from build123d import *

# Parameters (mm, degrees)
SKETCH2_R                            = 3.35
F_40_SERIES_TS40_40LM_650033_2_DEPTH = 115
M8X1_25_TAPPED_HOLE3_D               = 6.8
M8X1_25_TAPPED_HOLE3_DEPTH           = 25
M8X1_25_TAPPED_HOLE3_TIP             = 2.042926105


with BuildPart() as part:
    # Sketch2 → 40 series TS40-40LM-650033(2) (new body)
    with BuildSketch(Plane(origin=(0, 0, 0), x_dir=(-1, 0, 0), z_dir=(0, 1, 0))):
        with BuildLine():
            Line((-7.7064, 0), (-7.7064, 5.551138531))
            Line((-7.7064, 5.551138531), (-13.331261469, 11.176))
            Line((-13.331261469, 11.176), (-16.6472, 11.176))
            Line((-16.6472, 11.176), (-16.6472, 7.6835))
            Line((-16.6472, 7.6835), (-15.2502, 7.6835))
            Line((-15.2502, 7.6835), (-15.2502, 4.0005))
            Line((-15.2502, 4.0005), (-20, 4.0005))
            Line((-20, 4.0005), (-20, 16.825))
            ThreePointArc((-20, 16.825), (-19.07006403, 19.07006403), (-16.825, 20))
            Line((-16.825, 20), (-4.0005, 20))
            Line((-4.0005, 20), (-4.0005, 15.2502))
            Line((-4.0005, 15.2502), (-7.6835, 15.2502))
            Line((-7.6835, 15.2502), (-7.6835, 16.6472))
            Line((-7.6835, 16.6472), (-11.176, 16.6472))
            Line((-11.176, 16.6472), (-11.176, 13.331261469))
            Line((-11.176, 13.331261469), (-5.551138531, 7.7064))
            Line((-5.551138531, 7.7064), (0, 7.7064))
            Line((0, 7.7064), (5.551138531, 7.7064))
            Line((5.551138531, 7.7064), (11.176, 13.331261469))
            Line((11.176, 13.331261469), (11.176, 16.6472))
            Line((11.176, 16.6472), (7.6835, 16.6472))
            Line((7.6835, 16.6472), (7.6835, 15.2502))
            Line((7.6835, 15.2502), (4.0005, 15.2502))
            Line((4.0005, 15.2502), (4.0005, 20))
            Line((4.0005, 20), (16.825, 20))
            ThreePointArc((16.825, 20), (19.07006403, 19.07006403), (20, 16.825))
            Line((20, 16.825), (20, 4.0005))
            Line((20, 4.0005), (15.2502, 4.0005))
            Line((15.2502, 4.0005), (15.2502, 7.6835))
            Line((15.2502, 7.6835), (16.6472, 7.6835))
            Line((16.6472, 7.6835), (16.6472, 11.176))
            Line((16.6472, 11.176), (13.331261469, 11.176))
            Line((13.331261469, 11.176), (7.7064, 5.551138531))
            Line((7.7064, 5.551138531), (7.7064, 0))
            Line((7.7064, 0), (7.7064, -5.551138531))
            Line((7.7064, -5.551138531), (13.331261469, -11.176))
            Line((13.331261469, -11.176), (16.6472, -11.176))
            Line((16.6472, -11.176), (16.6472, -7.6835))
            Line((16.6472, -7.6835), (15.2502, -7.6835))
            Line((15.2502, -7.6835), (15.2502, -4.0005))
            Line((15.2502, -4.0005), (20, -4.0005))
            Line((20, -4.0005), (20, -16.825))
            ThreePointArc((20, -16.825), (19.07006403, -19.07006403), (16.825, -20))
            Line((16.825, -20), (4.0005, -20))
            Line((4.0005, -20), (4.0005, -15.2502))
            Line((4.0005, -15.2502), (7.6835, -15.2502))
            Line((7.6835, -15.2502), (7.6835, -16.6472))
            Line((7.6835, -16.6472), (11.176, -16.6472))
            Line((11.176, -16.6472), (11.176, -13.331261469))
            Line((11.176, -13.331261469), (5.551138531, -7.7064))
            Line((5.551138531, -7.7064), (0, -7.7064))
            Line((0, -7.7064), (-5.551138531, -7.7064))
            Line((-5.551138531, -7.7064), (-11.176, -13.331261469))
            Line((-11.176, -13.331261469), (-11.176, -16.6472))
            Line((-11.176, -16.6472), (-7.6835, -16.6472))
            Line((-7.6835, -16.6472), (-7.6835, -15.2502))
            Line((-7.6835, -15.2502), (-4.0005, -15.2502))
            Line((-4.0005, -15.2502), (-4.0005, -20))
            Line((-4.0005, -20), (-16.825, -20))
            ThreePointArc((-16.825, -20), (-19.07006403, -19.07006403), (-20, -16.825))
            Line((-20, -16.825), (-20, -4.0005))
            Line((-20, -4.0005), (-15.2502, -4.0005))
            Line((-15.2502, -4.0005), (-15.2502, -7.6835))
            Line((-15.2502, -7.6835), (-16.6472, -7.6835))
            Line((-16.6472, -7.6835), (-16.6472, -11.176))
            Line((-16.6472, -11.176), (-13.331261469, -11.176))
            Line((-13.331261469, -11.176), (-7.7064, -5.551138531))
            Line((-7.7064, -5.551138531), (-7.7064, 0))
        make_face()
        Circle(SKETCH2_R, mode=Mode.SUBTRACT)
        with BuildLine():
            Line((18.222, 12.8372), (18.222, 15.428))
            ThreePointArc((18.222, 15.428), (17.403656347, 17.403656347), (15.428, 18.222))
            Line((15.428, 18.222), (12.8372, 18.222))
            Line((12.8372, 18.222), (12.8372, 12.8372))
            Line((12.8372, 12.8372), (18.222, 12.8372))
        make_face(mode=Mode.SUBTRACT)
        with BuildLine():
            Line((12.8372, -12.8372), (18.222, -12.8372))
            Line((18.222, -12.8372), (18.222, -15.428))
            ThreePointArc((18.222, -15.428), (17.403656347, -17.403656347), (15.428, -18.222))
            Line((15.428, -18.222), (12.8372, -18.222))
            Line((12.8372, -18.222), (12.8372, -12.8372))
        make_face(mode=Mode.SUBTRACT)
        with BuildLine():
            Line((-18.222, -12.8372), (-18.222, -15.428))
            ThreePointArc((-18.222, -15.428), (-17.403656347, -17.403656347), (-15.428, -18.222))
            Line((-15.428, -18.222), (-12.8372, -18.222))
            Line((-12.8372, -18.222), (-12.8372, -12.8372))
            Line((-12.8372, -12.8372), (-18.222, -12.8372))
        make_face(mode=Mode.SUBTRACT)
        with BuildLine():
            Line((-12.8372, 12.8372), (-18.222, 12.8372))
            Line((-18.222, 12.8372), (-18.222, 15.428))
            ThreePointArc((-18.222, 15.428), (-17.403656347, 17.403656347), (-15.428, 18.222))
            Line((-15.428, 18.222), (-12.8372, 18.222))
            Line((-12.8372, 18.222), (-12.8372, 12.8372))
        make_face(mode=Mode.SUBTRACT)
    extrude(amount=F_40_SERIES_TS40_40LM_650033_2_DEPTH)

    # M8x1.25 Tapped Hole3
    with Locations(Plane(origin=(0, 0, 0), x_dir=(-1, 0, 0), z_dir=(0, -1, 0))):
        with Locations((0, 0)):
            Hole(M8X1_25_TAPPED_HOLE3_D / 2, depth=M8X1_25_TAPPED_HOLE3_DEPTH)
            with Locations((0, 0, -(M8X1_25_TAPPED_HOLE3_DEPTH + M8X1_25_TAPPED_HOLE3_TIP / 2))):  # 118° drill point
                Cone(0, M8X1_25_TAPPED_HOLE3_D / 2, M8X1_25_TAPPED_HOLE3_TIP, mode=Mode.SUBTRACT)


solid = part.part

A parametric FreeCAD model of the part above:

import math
import FreeCAD as App
import Part
import Sketcher
Q = App.Units.Quantity

doc = App.newDocument("Part")
body = doc.addObject("PartDesign::Body", "Body")

sketch1 = doc.addObject("Sketcher::SketchObject", "Sketch")
body.addObject(sketch1)
sketch1.AttachmentSupport = (doc.XZ_Plane, [""])
sketch1.MapMode = "FlatFace"
sketch1.addGeometry([
    Part.LineSegment(App.Vector(13.331261, 11.176, 0), App.Vector(7.7064, 5.551139, 0)),
    Part.LineSegment(App.Vector(7.7064, 5.551139, 0), App.Vector(7.7064, -5.551139, 0)),
    Part.LineSegment(App.Vector(7.7064, -5.551139, 0), App.Vector(13.331261, -11.176, 0)),
    Part.LineSegment(App.Vector(13.331261, -11.176, 0), App.Vector(16.6472, -11.176, 0)),
    Part.LineSegment(App.Vector(16.6472, -11.176, 0), App.Vector(16.6472, -7.6835, 0)),
    Part.LineSegment(App.Vector(16.6472, -7.6835, 0), App.Vector(15.2502, -7.6835, 0)),
    Part.LineSegment(App.Vector(15.2502, -7.6835, 0), App.Vector(15.2502, -4.0005, 0)),
    Part.LineSegment(App.Vector(15.2502, -4.0005, 0), App.Vector(20, -4.0005, 0)),
    Part.LineSegment(App.Vector(20, -4.0005, 0), App.Vector(20, -16.825, 0)),
    Part.ArcOfCircle(Part.Circle(App.Vector(16.825, -16.825, 0), App.Vector(0, 0, 1), 3.175), math.radians(-90), math.radians(0)),
    Part.LineSegment(App.Vector(16.825, -20, 0), App.Vector(4.0005, -20, 0)),
    Part.LineSegment(App.Vector(4.0005, -20, 0), App.Vector(4.0005, -15.2502, 0)),
    Part.LineSegment(App.Vector(4.0005, -15.2502, 0), App.Vector(7.6835, -15.2502, 0)),
    Part.LineSegment(App.Vector(7.6835, -15.2502, 0), App.Vector(7.6835, -16.6472, 0)),
    Part.LineSegment(App.Vector(7.6835, -16.6472, 0), App.Vector(11.176, -16.6472, 0)),
    Part.LineSegment(App.Vector(11.176, -16.6472, 0), App.Vector(11.176, -13.331261, 0)),
    Part.LineSegment(App.Vector(11.176, -13.331261, 0), App.Vector(5.551139, -7.7064, 0)),
    Part.LineSegment(App.Vector(5.551139, -7.7064, 0), App.Vector(-5.551139, -7.7064, 0)),
    Part.LineSegment(App.Vector(-5.551139, -7.7064, 0), App.Vector(-11.176, -13.331261, 0)),
    Part.LineSegment(App.Vector(-11.176, -13.331261, 0), App.Vector(-11.176, -16.6472, 0)),
    Part.LineSegment(App.Vector(-11.176, -16.6472, 0), App.Vector(-7.6835, -16.6472, 0)),
    Part.LineSegment(App.Vector(-7.6835, -16.6472, 0), App.Vector(-7.6835, -15.2502, 0)),
    Part.LineSegment(App.Vector(-7.6835, -15.2502, 0), App.Vector(-4.0005, -15.2502, 0)),
    Part.LineSegment(App.Vector(-4.0005, -15.2502, 0), App.Vector(-4.0005, -20, 0)),
    Part.LineSegment(App.Vector(-4.0005, -20, 0), App.Vector(-16.825, -20, 0)),
    Part.ArcOfCircle(Part.Circle(App.Vector(-16.825, -16.825, 0), App.Vector(0, 0, 1), 3.175), math.radians(-180), math.radians(-90)),
    Part.LineSegment(App.Vector(-20, -16.825, 0), App.Vector(-20, -4.0005, 0)),
    Part.LineSegment(App.Vector(-20, -4.0005, 0), App.Vector(-15.2502, -4.0005, 0)),
    Part.LineSegment(App.Vector(-15.2502, -4.0005, 0), App.Vector(-15.2502, -7.6835, 0)),
    Part.LineSegment(App.Vector(-15.2502, -7.6835, 0), App.Vector(-16.6472, -7.6835, 0)),
    Part.LineSegment(App.Vector(-16.6472, -7.6835, 0), App.Vector(-16.6472, -11.176, 0)),
    Part.LineSegment(App.Vector(-16.6472, -11.176, 0), App.Vector(-13.331261, -11.176, 0)),
    Part.LineSegment(App.Vector(-13.331261, -11.176, 0), App.Vector(-7.7064, -5.551139, 0)),
    Part.LineSegment(App.Vector(-7.7064, -5.551139, 0), App.Vector(-7.7064, 5.551139, 0)),
    Part.LineSegment(App.Vector(-7.7064, 5.551139, 0), App.Vector(-13.331261, 11.176, 0)),
    Part.LineSegment(App.Vector(-13.331261, 11.176, 0), App.Vector(-16.6472, 11.176, 0)),
    Part.LineSegment(App.Vector(-16.6472, 11.176, 0), App.Vector(-16.6472, 7.6835, 0)),
    Part.LineSegment(App.Vector(-16.6472, 7.6835, 0), App.Vector(-15.2502, 7.6835, 0)),
    Part.LineSegment(App.Vector(-15.2502, 7.6835, 0), App.Vector(-15.2502, 4.0005, 0)),
    Part.LineSegment(App.Vector(-15.2502, 4.0005, 0), App.Vector(-20, 4.0005, 0)),
    Part.LineSegment(App.Vector(-20, 4.0005, 0), App.Vector(-20, 16.825, 0)),
    Part.ArcOfCircle(Part.Circle(App.Vector(-16.825, 16.825, 0), App.Vector(0, 0, 1), 3.175), math.radians(90), math.radians(180)),
    Part.LineSegment(App.Vector(-16.825, 20, 0), App.Vector(-4.0005, 20, 0)),
    Part.LineSegment(App.Vector(-4.0005, 20, 0), App.Vector(-4.0005, 15.2502, 0)),
    Part.LineSegment(App.Vector(-4.0005, 15.2502, 0), App.Vector(-7.6835, 15.2502, 0)),
    Part.LineSegment(App.Vector(-7.6835, 15.2502, 0), App.Vector(-7.6835, 16.6472, 0)),
    Part.LineSegment(App.Vector(-7.6835, 16.6472, 0), App.Vector(-11.176, 16.6472, 0)),
    Part.LineSegment(App.Vector(-11.176, 16.6472, 0), App.Vector(-11.176, 13.331261, 0)),
    Part.LineSegment(App.Vector(-11.176, 13.331261, 0), App.Vector(-5.551139, 7.7064, 0)),
    Part.LineSegment(App.Vector(-5.551139, 7.7064, 0), App.Vector(5.551139, 7.7064, 0)),
    Part.LineSegment(App.Vector(5.551139, 7.7064, 0), App.Vector(11.176, 13.331261, 0)),
    Part.LineSegment(App.Vector(11.176, 13.331261, 0), App.Vector(11.176, 16.6472, 0)),
    Part.LineSegment(App.Vector(11.176, 16.6472, 0), App.Vector(7.6835, 16.6472, 0)),
    Part.LineSegment(App.Vector(7.6835, 16.6472, 0), App.Vector(7.6835, 15.2502, 0)),
    Part.LineSegment(App.Vector(7.6835, 15.2502, 0), App.Vector(4.0005, 15.2502, 0)),
    Part.LineSegment(App.Vector(4.0005, 15.2502, 0), App.Vector(4.0005, 20, 0)),
    Part.LineSegment(App.Vector(4.0005, 20, 0), App.Vector(16.825, 20, 0)),
    Part.ArcOfCircle(Part.Circle(App.Vector(16.825, 16.825, 0), App.Vector(0, 0, 1), 3.175), math.radians(0), math.radians(90)),
    Part.LineSegment(App.Vector(20, 16.825, 0), App.Vector(20, 4.0005, 0)),
    Part.LineSegment(App.Vector(20, 4.0005, 0), App.Vector(15.2502, 4.0005, 0)),
    Part.LineSegment(App.Vector(15.2502, 4.0005, 0), App.Vector(15.2502, 7.6835, 0)),
    Part.LineSegment(App.Vector(15.2502, 7.6835, 0), App.Vector(16.6472, 7.6835, 0)),
    Part.LineSegment(App.Vector(16.6472, 7.6835, 0), App.Vector(16.6472, 11.176, 0)),
    Part.LineSegment(App.Vector(16.6472, 11.176, 0), App.Vector(13.331261, 11.176, 0)),
    Part.LineSegment(App.Vector(-12.8372, -12.8372, 0), App.Vector(-18.222, -12.8372, 0)),
    Part.LineSegment(App.Vector(-18.222, -12.8372, 0), App.Vector(-18.222, -15.428, 0)),
    Part.ArcOfCircle(Part.Circle(App.Vector(-15.428, -15.428, 0), App.Vector(0, 0, 1), 2.794), math.radians(180), math.radians(270)),
    Part.LineSegment(App.Vector(-15.428, -18.222, 0), App.Vector(-12.8372, -18.222, 0)),
    Part.LineSegment(App.Vector(-12.8372, -18.222, 0), App.Vector(-12.8372, -12.8372, 0)),
    Part.LineSegment(App.Vector(18.222, -12.8372, 0), App.Vector(12.8372, -12.8372, 0)),
    Part.LineSegment(App.Vector(12.8372, -12.8372, 0), App.Vector(12.8372, -18.222, 0)),
    Part.LineSegment(App.Vector(12.8372, -18.222, 0), App.Vector(15.428, -18.222, 0)),
    Part.ArcOfCircle(Part.Circle(App.Vector(15.428, -15.428, 0), App.Vector(0, 0, 1), 2.794), math.radians(-90), math.radians(0)),
    Part.LineSegment(App.Vector(18.222, -15.428, 0), App.Vector(18.222, -12.8372, 0)),
    Part.LineSegment(App.Vector(-18.222, 12.8372, 0), App.Vector(-12.8372, 12.8372, 0)),
    Part.LineSegment(App.Vector(-12.8372, 12.8372, 0), App.Vector(-12.8372, 18.222, 0)),
    Part.LineSegment(App.Vector(-12.8372, 18.222, 0), App.Vector(-15.428, 18.222, 0)),
    Part.ArcOfCircle(Part.Circle(App.Vector(-15.428, 15.428, 0), App.Vector(0, 0, 1), 2.794), math.radians(90), math.radians(180)),
    Part.LineSegment(App.Vector(-18.222, 15.428, 0), App.Vector(-18.222, 12.8372, 0)),
    Part.Circle(App.Vector(0, 0, 0), App.Vector(0, 0, 1), 3.35),
    Part.LineSegment(App.Vector(12.8372, 12.8372, 0), App.Vector(18.222, 12.8372, 0)),
    Part.LineSegment(App.Vector(18.222, 12.8372, 0), App.Vector(18.222, 15.428, 0)),
    Part.ArcOfCircle(Part.Circle(App.Vector(15.428, 15.428, 0), App.Vector(0, 0, 1), 2.794), math.radians(0), math.radians(90)),
    Part.LineSegment(App.Vector(15.428, 18.222, 0), App.Vector(12.8372, 18.222, 0)),
    Part.LineSegment(App.Vector(12.8372, 18.222, 0), App.Vector(12.8372, 12.8372, 0)),
], False)
sketch1.addConstraint([
    Sketcher.Constraint("Coincident", 0, 2, 1, 1),
    Sketcher.Constraint("Coincident", 1, 2, 2, 1),
    Sketcher.Constraint("Coincident", 2, 2, 3, 1),
    Sketcher.Constraint("Coincident", 3, 2, 4, 1),
    Sketcher.Constraint("Coincident", 4, 2, 5, 1),
    Sketcher.Constraint("Coincident", 5, 2, 6, 1),
    Sketcher.Constraint("Coincident", 6, 2, 7, 1),
    Sketcher.Constraint("Coincident", 7, 2, 8, 1),
    Sketcher.Constraint("Tangent", 8, 2, 9, 2),
    Sketcher.Constraint("Tangent", 9, 1, 10, 1),
    Sketcher.Constraint("Coincident", 10, 2, 11, 1),
    Sketcher.Constraint("Coincident", 11, 2, 12, 1),
    Sketcher.Constraint("Coincident", 12, 2, 13, 1),
    Sketcher.Constraint("Coincident", 13, 2, 14, 1),
    Sketcher.Constraint("Coincident", 14, 2, 15, 1),
    Sketcher.Constraint("Coincident", 15, 2, 16, 1),
    Sketcher.Constraint("Coincident", 16, 2, 17, 1),
    Sketcher.Constraint("Coincident", 17, 2, 18, 1),
    Sketcher.Constraint("Coincident", 18, 2, 19, 1),
    Sketcher.Constraint("Coincident", 19, 2, 20, 1),
    Sketcher.Constraint("Coincident", 20, 2, 21, 1),
    Sketcher.Constraint("Coincident", 21, 2, 22, 1),
    Sketcher.Constraint("Coincident", 22, 2, 23, 1),
    Sketcher.Constraint("Coincident", 23, 2, 24, 1),
    Sketcher.Constraint("Tangent", 24, 2, 25, 2),
    Sketcher.Constraint("Tangent", 25, 1, 26, 1),
    Sketcher.Constraint("Coincident", 26, 2, 27, 1),
    Sketcher.Constraint("Coincident", 27, 2, 28, 1),
    Sketcher.Constraint("Coincident", 28, 2, 29, 1),
    Sketcher.Constraint("Coincident", 29, 2, 30, 1),
    Sketcher.Constraint("Coincident", 30, 2, 31, 1),
    Sketcher.Constraint("Coincident", 31, 2, 32, 1),
    Sketcher.Constraint("Coincident", 32, 2, 33, 1),
    Sketcher.Constraint("Coincident", 33, 2, 34, 1),
    Sketcher.Constraint("Coincident", 34, 2, 35, 1),
    Sketcher.Constraint("Coincident", 35, 2, 36, 1),
    Sketcher.Constraint("Coincident", 36, 2, 37, 1),
    Sketcher.Constraint("Coincident", 37, 2, 38, 1),
    Sketcher.Constraint("Coincident", 38, 2, 39, 1),
    Sketcher.Constraint("Coincident", 39, 2, 40, 1),
    Sketcher.Constraint("Tangent", 40, 2, 41, 2),
    Sketcher.Constraint("Tangent", 41, 1, 42, 1),
    Sketcher.Constraint("Coincident", 42, 2, 43, 1),
    Sketcher.Constraint("Coincident", 43, 2, 44, 1),
    Sketcher.Constraint("Coincident", 44, 2, 45, 1),
    Sketcher.Constraint("Coincident", 45, 2, 46, 1),
    Sketcher.Constraint("Coincident", 46, 2, 47, 1),
    Sketcher.Constraint("Coincident", 47, 2, 48, 1),
    Sketcher.Constraint("Coincident", 48, 2, 49, 1),
    Sketcher.Constraint("Coincident", 49, 2, 50, 1),
    Sketcher.Constraint("Coincident", 50, 2, 51, 1),
    Sketcher.Constraint("Coincident", 51, 2, 52, 1),
    Sketcher.Constraint("Coincident", 52, 2, 53, 1),
    Sketcher.Constraint("Coincident", 53, 2, 54, 1),
    Sketcher.Constraint("Coincident", 54, 2, 55, 1),
    Sketcher.Constraint("Coincident", 55, 2, 56, 1),
    Sketcher.Constraint("Tangent", 56, 2, 57, 2),
    Sketcher.Constraint("Tangent", 57, 1, 58, 1),
    Sketcher.Constraint("Coincident", 58, 2, 59, 1),
    Sketcher.Constraint("Coincident", 59, 2, 60, 1),
    Sketcher.Constraint("Coincident", 60, 2, 61, 1),
    Sketcher.Constraint("Coincident", 61, 2, 62, 1),
    Sketcher.Constraint("Coincident", 62, 2, 63, 1),
    Sketcher.Constraint("Coincident", 63, 2, 0, 1),
    Sketcher.Constraint("Coincident", 64, 2, 65, 1),
    Sketcher.Constraint("Tangent", 65, 2, 66, 1),
    Sketcher.Constraint("Tangent", 66, 2, 67, 1),
    Sketcher.Constraint("Coincident", 67, 2, 68, 1),
    Sketcher.Constraint("Coincident", 68, 2, 64, 1),
    Sketcher.Constraint("Coincident", 69, 2, 70, 1),
    Sketcher.Constraint("Coincident", 70, 2, 71, 1),
    Sketcher.Constraint("Tangent", 71, 2, 72, 1),
    Sketcher.Constraint("Tangent", 72, 2, 73, 1),
    Sketcher.Constraint("Coincident", 73, 2, 69, 1),
    Sketcher.Constraint("Coincident", 74, 2, 75, 1),
    Sketcher.Constraint("Coincident", 75, 2, 76, 1),
    Sketcher.Constraint("Tangent", 76, 2, 77, 1),
    Sketcher.Constraint("Tangent", 77, 2, 78, 1),
    Sketcher.Constraint("Coincident", 78, 2, 74, 1),
    Sketcher.Constraint("Coincident", 80, 2, 81, 1),
    Sketcher.Constraint("Tangent", 81, 2, 82, 1),
    Sketcher.Constraint("Tangent", 82, 2, 83, 1),
    Sketcher.Constraint("Coincident", 83, 2, 84, 1),
    Sketcher.Constraint("Coincident", 84, 2, 80, 1),
    Sketcher.Constraint("Vertical", 1),
    Sketcher.Constraint("Horizontal", 3),
    Sketcher.Constraint("Vertical", 4),
    Sketcher.Constraint("Horizontal", 5),
    Sketcher.Constraint("Vertical", 6),
    Sketcher.Constraint("Horizontal", 7),
    Sketcher.Constraint("Vertical", 8),
    Sketcher.Constraint("Horizontal", 10),
    Sketcher.Constraint("Vertical", 11),
    Sketcher.Constraint("Horizontal", 12),
    Sketcher.Constraint("Vertical", 13),
    Sketcher.Constraint("Horizontal", 14),
    Sketcher.Constraint("Vertical", 15),
    Sketcher.Constraint("Horizontal", 17),
    Sketcher.Constraint("Vertical", 19),
    Sketcher.Constraint("Horizontal", 20),
    Sketcher.Constraint("Vertical", 21),
    Sketcher.Constraint("Horizontal", 22),
    Sketcher.Constraint("Vertical", 23),
    Sketcher.Constraint("Horizontal", 24),
    Sketcher.Constraint("Vertical", 26),
    Sketcher.Constraint("Horizontal", 27),
    Sketcher.Constraint("Vertical", 28),
    Sketcher.Constraint("Horizontal", 29),
    Sketcher.Constraint("Vertical", 30),
    Sketcher.Constraint("Horizontal", 31),
    Sketcher.Constraint("Vertical", 33),
    Sketcher.Constraint("Horizontal", 35),
    Sketcher.Constraint("Vertical", 36),
    Sketcher.Constraint("Horizontal", 37),
    Sketcher.Constraint("Vertical", 38),
    Sketcher.Constraint("Horizontal", 39),
    Sketcher.Constraint("Vertical", 40),
    Sketcher.Constraint("Horizontal", 42),
    Sketcher.Constraint("Vertical", 43),
    Sketcher.Constraint("Horizontal", 44),
    Sketcher.Constraint("Vertical", 45),
    Sketcher.Constraint("Horizontal", 46),
    Sketcher.Constraint("Vertical", 47),
    Sketcher.Constraint("Horizontal", 49),
    Sketcher.Constraint("Vertical", 51),
    Sketcher.Constraint("Horizontal", 52),
    Sketcher.Constraint("Vertical", 53),
    Sketcher.Constraint("Horizontal", 54),
    Sketcher.Constraint("Vertical", 55),
    Sketcher.Constraint("Horizontal", 56),
    Sketcher.Constraint("Vertical", 58),
    Sketcher.Constraint("Horizontal", 59),
    Sketcher.Constraint("Vertical", 60),
    Sketcher.Constraint("Horizontal", 61),
    Sketcher.Constraint("Vertical", 62),
    Sketcher.Constraint("Horizontal", 63),
    Sketcher.Constraint("Horizontal", 64),
    Sketcher.Constraint("Vertical", 65),
    Sketcher.Constraint("Horizontal", 67),
    Sketcher.Constraint("Vertical", 68),
    Sketcher.Constraint("Horizontal", 69),
    Sketcher.Constraint("Vertical", 70),
    Sketcher.Constraint("Horizontal", 71),
    Sketcher.Constraint("Vertical", 73),
    Sketcher.Constraint("Horizontal", 74),
    Sketcher.Constraint("Vertical", 75),
    Sketcher.Constraint("Horizontal", 76),
    Sketcher.Constraint("Vertical", 78),
    Sketcher.Constraint("Horizontal", 80),
    Sketcher.Constraint("Vertical", 81),
    Sketcher.Constraint("Horizontal", 83),
    Sketcher.Constraint("Vertical", 84),
    Sketcher.Constraint("Coincident", 79, 3, -1, 1),
    Sketcher.Constraint("Equal", 9, 25),
    Sketcher.Constraint("Equal", 25, 41),
    Sketcher.Constraint("Equal", 41, 57),
    Sketcher.Constraint("Equal", 66, 72),
    Sketcher.Constraint("Equal", 72, 77),
    Sketcher.Constraint("Equal", 77, 82),
    Sketcher.Constraint("Symmetric", 9, 3, 41, 3, -1, 1),
    Sketcher.Constraint("Symmetric", 25, 3, 57, 3, -1, 1),
    Sketcher.Constraint("Symmetric", 72, 3, 77, 3, -1, 1),
    Sketcher.Constraint("Symmetric", 66, 3, 82, 3, -1, 1),
    Sketcher.Constraint("Symmetric", 0, 2, 32, 2, -1, 1),
    Sketcher.Constraint("Symmetric", 2, 2, 34, 2, -1, 1),
    Sketcher.Constraint("Symmetric", 4, 2, 36, 2, -1, 1),
    Sketcher.Constraint("Symmetric", 6, 2, 38, 2, -1, 1),
    Sketcher.Constraint("Symmetric", 11, 2, 43, 2, -1, 1),
    Sketcher.Constraint("Symmetric", 13, 2, 45, 2, -1, 1),
    Sketcher.Constraint("Symmetric", 15, 2, 47, 2, -1, 1),
    Sketcher.Constraint("Symmetric", 16, 2, 48, 2, -1, 1),
    Sketcher.Constraint("Symmetric", 18, 2, 50, 2, -1, 1),
    Sketcher.Constraint("Symmetric", 20, 2, 52, 2, -1, 1),
    Sketcher.Constraint("Symmetric", 22, 2, 54, 2, -1, 1),
    Sketcher.Constraint("Symmetric", 27, 2, 59, 2, -1, 1),
    Sketcher.Constraint("Symmetric", 29, 2, 61, 2, -1, 1),
    Sketcher.Constraint("Symmetric", 31, 2, 63, 2, -1, 1),
    Sketcher.Constraint("Symmetric", 69, 2, 74, 2, -1, 1),
    Sketcher.Constraint("Symmetric", 68, 2, 84, 2, -1, 1),
    Sketcher.Constraint("Symmetric", 9, 3, 25, 3, -2),
    Sketcher.Constraint("Symmetric", 66, 3, 72, 3, -2),
    Sketcher.Constraint("Symmetric", 15, 2, 18, 2, -2),
    Sketcher.Constraint("Symmetric", 13, 2, 20, 2, -2),
    Sketcher.Constraint("Symmetric", 11, 2, 22, 2, -2),
    Sketcher.Constraint("Symmetric", 6, 2, 27, 2, -2),
    Sketcher.Constraint("Symmetric", 4, 2, 29, 2, -2),
    Sketcher.Constraint("Symmetric", 2, 2, 31, 2, -2),
    Sketcher.Constraint("Symmetric", 68, 2, 69, 2, -2),
    Sketcher.Constraint("Perpendicular", 0, 2),
    Sketcher.Constraint("Parallel", 2, 16),
    Sketcher.Constraint("Perpendicular", 16, 18),
    Sketcher.Constraint("Perpendicular", 32, 34),
    Sketcher.Constraint("Perpendicular", 48, 50),
    Sketcher.Constraint("Horizontal", 1, 2, 32, 2),
    Sketcher.Constraint("Equal", 49, 1),
    Sketcher.Constraint("Equal", 52, 4),
    Sketcher.Constraint("Equal", 54, 6),
    Sketcher.Constraint("Equal", 56, 8),
    Sketcher.Constraint("Equal", 59, 11),
    Sketcher.Constraint("Equal", 61, 13),
    Sketcher.Constraint("Equal", 63, 15),
    Sketcher.Constraint("Equal", 83, 65),
    Sketcher.Constraint("Equal", 2, 16),
    Sketcher.Constraint("Radius", 66, Q("0.11 in")),
    Sketcher.Constraint("Radius", 9, Q("0.125 in")),
    Sketcher.Constraint("Diameter", 79, 6.7),
    Sketcher.Constraint("DistanceX", 5, 2, 5, 1, Q("0.055 in")),
    Sketcher.Constraint("DistanceX", 7, 1, 7, 2, Q("0.187 in")),
    Sketcher.Constraint("DistanceX", 12, 1, 12, 2, Q("0.145 in")),
    Sketcher.Constraint("DistanceX", 64, 2, 64, 1, Q("0.212 in")),
    Sketcher.Constraint("DistanceY", 2, 2, -1, 1, Q("0.44 in")),
    Sketcher.Constraint("DistanceX", 14, 1, 14, 2, Q("0.1375 in")),
    Sketcher.Constraint("DistanceX", 10, 2, 10, 1, 12.8245),
    Sketcher.Constraint("DistanceX", 3, 1, 3, 2, 3.315939),
    Sketcher.Constraint("DistanceX", 66, 3, -1, 1, 15.428),
    Sketcher.Constraint("DistanceY", 66, 3, -1, 1, 15.428),
    Sketcher.Constraint("DistanceX", -1, 1, 0, 2, 7.7064),
])
pad1 = doc.addObject("PartDesign::Pad", "Pad")
body.addObject(pad1)
pad1.Profile = sketch1
pad1.Length = 115
pad1.Reversed = True

sketch2 = doc.addObject("Sketcher::SketchObject", "Sketch001")
body.addObject(sketch2)
sketch2.AttachmentSupport = (doc.XZ_Plane, [""])
sketch2.MapMode = "FlatFace"
sketch2.addGeometry(Part.Circle(App.Vector(0, 0, 0), App.Vector(0, 0, 1), 3.4), False)
sketch2.addConstraint([
    Sketcher.Constraint("Coincident", 0, 3, -1, 1),
    Sketcher.Constraint("Diameter", 0, 6.8),
])
doc.recompute()
hole = doc.addObject("PartDesign::Hole", "Hole")
body.addObject(hole)
hole.Profile = sketch2
hole.ThreadType = "None"
hole.Diameter = 6.8
hole.DepthType = "Dimension"
hole.Depth = 25
hole.DrillPoint = "Angled"
hole.DrillPointAngle = 118

doc.recompute()
